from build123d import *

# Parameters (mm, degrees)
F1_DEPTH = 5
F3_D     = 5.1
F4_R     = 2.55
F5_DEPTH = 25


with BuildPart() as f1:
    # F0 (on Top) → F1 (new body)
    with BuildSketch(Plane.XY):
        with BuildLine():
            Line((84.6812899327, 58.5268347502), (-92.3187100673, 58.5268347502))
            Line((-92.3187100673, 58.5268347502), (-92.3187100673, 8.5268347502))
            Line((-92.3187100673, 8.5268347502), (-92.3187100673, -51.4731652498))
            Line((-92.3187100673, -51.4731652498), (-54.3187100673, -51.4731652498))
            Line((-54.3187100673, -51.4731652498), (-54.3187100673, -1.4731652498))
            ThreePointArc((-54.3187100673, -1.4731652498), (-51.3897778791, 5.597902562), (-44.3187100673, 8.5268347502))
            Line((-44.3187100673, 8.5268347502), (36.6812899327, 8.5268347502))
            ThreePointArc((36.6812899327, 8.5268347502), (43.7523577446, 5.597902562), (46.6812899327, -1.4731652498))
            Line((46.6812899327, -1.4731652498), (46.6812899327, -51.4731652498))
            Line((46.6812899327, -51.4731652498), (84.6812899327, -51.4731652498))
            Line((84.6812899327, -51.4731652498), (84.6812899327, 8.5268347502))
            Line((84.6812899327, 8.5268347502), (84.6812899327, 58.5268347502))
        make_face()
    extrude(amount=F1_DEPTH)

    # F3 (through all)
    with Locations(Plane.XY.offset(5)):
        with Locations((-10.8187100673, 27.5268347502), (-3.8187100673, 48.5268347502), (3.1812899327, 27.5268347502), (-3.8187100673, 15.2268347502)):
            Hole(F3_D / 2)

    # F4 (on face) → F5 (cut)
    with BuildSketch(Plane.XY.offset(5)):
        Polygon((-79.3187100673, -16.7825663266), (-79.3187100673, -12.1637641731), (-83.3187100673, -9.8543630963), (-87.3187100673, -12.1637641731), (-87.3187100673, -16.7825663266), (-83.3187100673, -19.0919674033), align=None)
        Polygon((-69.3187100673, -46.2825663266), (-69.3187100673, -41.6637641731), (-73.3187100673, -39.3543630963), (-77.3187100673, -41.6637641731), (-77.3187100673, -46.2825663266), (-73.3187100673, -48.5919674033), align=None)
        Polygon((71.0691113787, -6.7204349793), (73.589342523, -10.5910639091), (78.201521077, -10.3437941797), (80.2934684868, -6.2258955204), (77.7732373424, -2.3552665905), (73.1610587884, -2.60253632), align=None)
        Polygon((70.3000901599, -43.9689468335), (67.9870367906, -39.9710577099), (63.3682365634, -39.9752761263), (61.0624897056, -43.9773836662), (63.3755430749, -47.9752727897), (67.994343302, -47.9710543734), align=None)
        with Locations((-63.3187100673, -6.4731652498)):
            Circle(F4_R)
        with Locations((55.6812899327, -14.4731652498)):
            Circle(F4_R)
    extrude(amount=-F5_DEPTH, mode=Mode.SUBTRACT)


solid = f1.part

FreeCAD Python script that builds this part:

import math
import FreeCAD as App
import Part
import Sketcher
Q = App.Units.Quantity

doc = App.newDocument("Part")
body = doc.addObject("PartDesign::Body", "Body")

# Sketch on XY plane
sketch1 = body.newObject("Sketcher::SketchObject", "Sketch")
sketch1.AttachmentSupport = (doc.getObject("XY_Plane"), [""])
sketch1.MapMode = "FlatFace"
sketch1.addGeometry(Part.LineSegment(App.Vector(85, 59, 0), App.Vector(-92, 59, 0)), False)
sketch1.addGeometry(Part.LineSegment(App.Vector(-92, 59, 0), App.Vector(-92, -51, 0)), False)
sketch1.addGeometry(Part.LineSegment(App.Vector(-92, -51, 0), App.Vector(-54, -51, 0)), False)
sketch1.addGeometry(Part.LineSegment(App.Vector(-54, -51, 0), App.Vector(-54, -1, 0)), False)
sketch1.addGeometry(Part.ArcOfCircle(Part.Circle(App.Vector(-44, -1, 0), App.Vector(0, 0, 1), 10), math.radians(90), math.radians(180)), False)
sketch1.addGeometry(Part.LineSegment(App.Vector(-44, 9, 0), App.Vector(37, 9, 0)), False)
sketch1.addGeometry(Part.ArcOfCircle(Part.Circle(App.Vector(37, -1, 0), App.Vector(0, 0, 1), 10), math.radians(0), math.radians(90)), False)
sketch1.addGeometry(Part.LineSegment(App.Vector(47, -1, 0), App.Vector(47, -51, 0)), False)
sketch1.addGeometry(Part.LineSegment(App.Vector(47, -51, 0), App.Vector(85, -51, 0)), False)
sketch1.addGeometry(Part.LineSegment(App.Vector(85, -51, 0), App.Vector(85, 59, 0)), False)
sketch1.addConstraint(Sketcher.Constraint("Coincident", 0, 2, 1, 1))
sketch1.addConstraint(Sketcher.Constraint("Coincident", 1, 2, 2, 1))
sketch1.addConstraint(Sketcher.Constraint("Coincident", 2, 2, 3, 1))
sketch1.addConstraint(Sketcher.Constraint("Tangent", 3, 2, 4, 2))
sketch1.addConstraint(Sketcher.Constraint("Tangent", 4, 1, 5, 1))
sketch1.addConstraint(Sketcher.Constraint("Tangent", 5, 2, 6, 2))
sketch1.addConstraint(Sketcher.Constraint("Tangent", 6, 1, 7, 1))
sketch1.addConstraint(Sketcher.Constraint("Coincident", 7, 2, 8, 1))
sketch1.addConstraint(Sketcher.Constraint("Coincident", 8, 2, 9, 1))
sketch1.addConstraint(Sketcher.Constraint("Coincident", 9, 2, 0, 1))
sketch1.addConstraint(Sketcher.Constraint("Horizontal", 0))
sketch1.addConstraint(Sketcher.Constraint("Vertical", 1))
sketch1.addConstraint(Sketcher.Constraint("Horizontal", 2))
sketch1.addConstraint(Sketcher.Constraint("Vertical", 3))
sketch1.addConstraint(Sketcher.Constraint("Horizontal", 5))
sketch1.addConstraint(Sketcher.Constraint("Vertical", 7))
sketch1.addConstraint(Sketcher.Constraint("Horizontal", 8))
sketch1.addConstraint(Sketcher.Constraint("Vertical", 9))
sketch1.addConstraint(Sketcher.Constraint("Equal", 4, 6))
sketch1.addConstraint(Sketcher.Constraint("Horizontal", 2, 2, 7, 2))
sketch1.addConstraint(Sketcher.Constraint("Equal", 2, 8))
sketch1.addConstraint(Sketcher.Constraint("Radius", 4, Q("10 mm")))
sketch1.addConstraint(Sketcher.Constraint("DistanceX", 0, 2, 0, 1, Q("177 mm")))
sketch1.addConstraint(Sketcher.Constraint("DistanceX", 2, 1, 2, 2, Q("38 mm")))
sketch1.addConstraint(Sketcher.Constraint("DistanceY", 1, 2, 1, 1, Q("110 mm")))
sketch1.addConstraint(Sketcher.Constraint("DistanceY", 3, 1, 3, 2, Q("50 mm")))
sketch1.addConstraint(Sketcher.Constraint("DistanceX", 4, 3, -1, 1, Q("44.31871 mm")))
sketch1.addConstraint(Sketcher.Constraint("DistanceY", 4, 3, -1, 1, Q("1.473165 mm")))
pad1 = body.newObject("PartDesign::Pad", "Pad")
pad1.Profile = sketch1
pad1.Length = 5

# Sketch on XY plane
sketch2 = body.newObject("Sketcher::SketchObject", "Sketch001")
sketch2.AttachmentSupport = (doc.getObject("XY_Plane"), [""])
sketch2.MapMode = "FlatFace"
sketch2.AttachmentOffset = App.Placement(App.Vector(0, 0, 5), App.Rotation())
sketch2.addGeometry(Part.Circle(App.Vector(-10.8, 27.5, 0), App.Vector(0, 0, 1), 2.5), False)
sketch2.addGeometry(Part.Circle(App.Vector(-3.8, 48.5, 0), App.Vector(0, 0, 1), 2.5), False)
sketch2.addGeometry(Part.Circle(App.Vector(3.2, 27.5, 0), App.Vector(0, 0, 1), 2.5), False)
sketch2.addGeometry(Part.Circle(App.Vector(-3.8, 15.2, 0), App.Vector(0, 0, 1), 2.5), False)
sketch2.addConstraint(Sketcher.Constraint("Equal", 0, 1))
sketch2.addConstraint(Sketcher.Constraint("Equal", 1, 2))
sketch2.addConstraint(Sketcher.Constraint("Equal", 2, 3))
sketch2.addConstraint(Sketcher.Constraint("Horizontal", 0, 3, 2, 3))
sketch2.addConstraint(Sketcher.Constraint("Vertical", 1, 3, 3, 3))
sketch2.addConstraint(Sketcher.Constraint("Diameter", 0, Q("5.1 mm")))
sketch2.addConstraint(Sketcher.Constraint("DistanceX", 0, 3, 1, 3, Q("7 mm")))
sketch2.addConstraint(Sketcher.Constraint("DistanceY", 0, 3, 1, 3, Q("21 mm")))
sketch2.addConstraint(Sketcher.Constraint("DistanceX", 0, 3, 2, 3, Q("14 mm")))
sketch2.addConstraint(Sketcher.Constraint("DistanceY", 3, 3, 0, 3, Q("12.3 mm")))
sketch2.addConstraint(Sketcher.Constraint("DistanceX", 0, 3, -1, 1, Q("10.81871 mm")))
sketch2.addConstraint(Sketcher.Constraint("DistanceY", -1, 1, 0, 3, Q("27.526835 mm")))
doc.recompute()
hole = body.newObject("PartDesign::Hole", "Hole")
hole.Profile = sketch2
hole.ThreadType = "None"
hole.Diameter = 5.1
hole.DepthType = "ThroughAll"

# Sketch on XY plane
sketch3 = body.newObject("Sketcher::SketchObject", "Sketch002")
sketch3.AttachmentSupport = (doc.getObject("XY_Plane"), [""])
sketch3.MapMode = "FlatFace"
sketch3.AttachmentOffset = App.Placement(App.Vector(0, 0, 5), App.Rotation())
sketch3.addGeometry(Part.LineSegment(App.Vector(-79.3, -16.8, 0), App.Vector(-79.3, -12.2, 0)), False)
sketch3.addGeometry(Part.LineSegment(App.Vector(-79.3, -12.2, 0), App.Vector(-83.3, -9.9, 0)), False)
sketch3.addGeometry(Part.LineSegment(App.Vector(-83.3, -9.9, 0), App.Vector(-87.3, -12.2, 0)), False)
sketch3.addGeometry(Part.LineSegment(App.Vector(-87.3, -12.2, 0), App.Vector(-87.3, -16.8, 0)), False)
sketch3.addGeometry(Part.LineSegment(App.Vector(-87.3, -16.8, 0), App.Vector(-83.3, -19.1, 0)), False)
sketch3.addGeometry(Part.LineSegment(App.Vector(-83.3, -19.1, 0), App.Vector(-79.3, -16.8, 0)), False)
sketch3.addGeometry(Part.LineSegment(App.Vector(-69.3, -46.3, 0), App.Vector(-69.3, -41.7, 0)), False)
sketch3.addGeometry(Part.LineSegment(App.Vector(-69.3, -41.7, 0), App.Vector(-73.3, -39.4, 0)), False)
sketch3.addGeometry(Part.LineSegment(App.Vector(-73.3, -39.4, 0), App.Vector(-77.3, -41.7, 0)), False)
sketch3.addGeometry(Part.LineSegment(App.Vector(-77.3, -41.7, 0), App.Vector(-77.3, -46.3, 0)), False)
sketch3.addGeometry(Part.LineSegment(App.Vector(-77.3, -46.3, 0), App.Vector(-73.3, -48.6, 0)), False)
sketch3.addGeometry(Part.LineSegment(App.Vector(-73.3, -48.6, 0), App.Vector(-69.3, -46.3, 0)), False)
sketch3.addGeometry(Part.LineSegment(App.Vector(71.1, -6.7, 0), App.Vector(73.6, -10.6, 0)), False)
sketch3.addGeometry(Part.LineSegment(App.Vector(73.6, -10.6, 0), App.Vector(78.2, -10.3, 0)), False)
sketch3.addGeometry(Part.LineSegment(App.Vector(78.2, -10.3, 0), App.Vector(80.3, -6.2, 0)), False)
sketch3.addGeometry(Part.LineSegment(App.Vector(80.3, -6.2, 0), App.Vector(77.8, -2.4, 0)), False)
sketch3.addGeometry(Part.LineSegment(App.Vector(77.8, -2.4, 0), App.Vector(73.2, -2.6, 0)), False)
sketch3.addGeometry(Part.LineSegment(App.Vector(73.2, -2.6, 0), App.Vector(71.1, -6.7, 0)), False)
sketch3.addGeometry(Part.LineSegment(App.Vector(70.3, -44, 0), App.Vector(68, -40, 0)), False)
sketch3.addGeometry(Part.LineSegment(App.Vector(68, -40, 0), App.Vector(63.4, -40, 0)), False)
sketch3.addGeometry(Part.LineSegment(App.Vector(63.4, -40, 0), App.Vector(61.1, -44, 0)), False)
sketch3.addGeometry(Part.LineSegment(App.Vector(61.1, -44, 0), App.Vector(63.4, -48, 0)), False)
sketch3.addGeometry(Part.LineSegment(App.Vector(63.4, -48, 0), App.Vector(68, -48, 0)), False)
sketch3.addGeometry(Part.LineSegment(App.Vector(68, -48, 0), App.Vector(70.3, -44, 0)), False)
sketch3.addGeometry(Part.Circle(App.Vector(-63.3, -6.5, 0), App.Vector(0, 0, 1), 2.5), False)
sketch3.addGeometry(Part.Circle(App.Vector(55.7, -14.5, 0), App.Vector(0, 0, 1), 2.5), False)
sketch3.addConstraint(Sketcher.Constraint("Coincident", 0, 2, 1, 1))
sketch3.addConstraint(Sketcher.Constraint("Coincident", 1, 2, 2, 1))
sketch3.addConstraint(Sketcher.Constraint("Coincident", 2, 2, 3, 1))
sketch3.addConstraint(Sketcher.Constraint("Coincident", 3, 2, 4, 1))
sketch3.addConstraint(Sketcher.Constraint("Coincident", 4, 2, 5, 1))
sketch3.addConstraint(Sketcher.Constraint("Coincident", 5, 2, 0, 1))
sketch3.addConstraint(Sketcher.Constraint("Coincident", 6, 2, 7, 1))
sketch3.addConstraint(Sketcher.Constraint("Coincident", 7, 2, 8, 1))
sketch3.addConstraint(Sketcher.Constraint("Coincident", 8, 2, 9, 1))
sketch3.addConstraint(Sketcher.Constraint("Coincident", 9, 2, 10, 1))
sketch3.addConstraint(Sketcher.Constraint("Coincident", 10, 2, 11, 1))
sketch3.addConstraint(Sketcher.Constraint("Coincident", 11, 2, 6, 1))
sketch3.addConstraint(Sketcher.Constraint("Coincident", 12, 2, 13, 1))
sketch3.addConstraint(Sketcher.Constraint("Coincident", 13, 2, 14, 1))
sketch3.addConstraint(Sketcher.Constraint("Coincident", 14, 2, 15, 1))
sketch3.addConstraint(Sketcher.Constraint("Coincident", 15, 2, 16, 1))
sketch3.addConstraint(Sketcher.Constraint("Coincident", 16, 2, 17, 1))
sketch3.addConstraint(Sketcher.Constraint("Coincident", 17, 2, 12, 1))
sketch3.addConstraint(Sketcher.Constraint("Coincident", 18, 2, 19, 1))
sketch3.addConstraint(Sketcher.Constraint("Coincident", 19, 2, 20, 1))
sketch3.addConstraint(Sketcher.Constraint("Coincident", 20, 2, 21, 1))
sketch3.addConstraint(Sketcher.Constraint("Coincident", 21, 2, 22, 1))
sketch3.addConstraint(Sketcher.Constraint("Coincident", 22, 2, 23, 1))
sketch3.addConstraint(Sketcher.Constraint("Coincident", 23, 2, 18, 1))
sketch3.addConstraint(Sketcher.Constraint("Vertical", 0))
sketch3.addConstraint(Sketcher.Constraint("Vertical", 3))
sketch3.addConstraint(Sketcher.Constraint("Vertical", 6))
sketch3.addConstraint(Sketcher.Constraint("Vertical", 9))
sketch3.addConstraint(Sketcher.Constraint("Equal", 24, 25))
sketch3.addConstraint(Sketcher.Constraint("Parallel", 1, 4))
sketch3.addConstraint(Sketcher.Constraint("Parallel", 2, 5))
sketch3.addConstraint(Sketcher.Constraint("Parallel", 4, 7))
sketch3.addConstraint(Sketcher.Constraint("Parallel", 5, 8))
sketch3.addConstraint(Sketcher.Constraint("Parallel", 7, 10))
sketch3.addConstraint(Sketcher.Constraint("Parallel", 8, 11))
sketch3.addConstraint(Sketcher.Constraint("Parallel", 12, 15))
sketch3.addConstraint(Sketcher.Constraint("Parallel", 13, 16))
sketch3.addConstraint(Sketcher.Constraint("Parallel", 14, 17))
sketch3.addConstraint(Sketcher.Constraint("Parallel", 18, 21))
sketch3.addConstraint(Sketcher.Constraint("Parallel", 19, 22))
sketch3.addConstraint(Sketcher.Constraint("Parallel", 20, 23))
sketch3.addConstraint(Sketcher.Constraint("Horizontal", 0, 2, 2, 2))
sketch3.addConstraint(Sketcher.Constraint("Horizontal", 3, 2, 5, 2))
sketch3.addConstraint(Sketcher.Constraint("Horizontal", 6, 2, 8, 2))
sketch3.addConstraint(Sketcher.Constraint("Horizontal", 9, 2, 11, 2))
sketch3.addConstraint(Sketcher.Constraint("Vertical", 1, 2, 4, 2))
sketch3.addConstraint(Sketcher.Constraint("Equal", 3, 6))
sketch3.addConstraint(Sketcher.Constraint("Equal", 5, 7))
sketch3.addConstraint(Sketcher.Constraint("Equal", 11, 12))
sketch3.addConstraint(Sketcher.Constraint("Equal", 12, 13))
sketch3.addConstraint(Sketcher.Constraint("Equal", 13, 14))
sketch3.addConstraint(Sketcher.Constraint("Equal", 14, 15))
sketch3.addConstraint(Sketcher.Constraint("Equal", 17, 18))
sketch3.addConstraint(Sketcher.Constraint("Equal", 18, 19))
sketch3.addConstraint(Sketcher.Constraint("Equal", 19, 20))
sketch3.addConstraint(Sketcher.Constraint("Equal", 20, 21))
sketch3.addConstraint(Sketcher.Constraint("Diameter", 24, Q("5.1 mm")))
sketch3.addConstraint(Sketcher.Constraint("Angle", 1, Q("150 deg")))
sketch3.addConstraint(Sketcher.Constraint("DistanceX", 24, 3, 25, 3, Q("119 mm")))
sketch3.addConstraint(Sketcher.Constraint("DistanceY", 25, 3, 24, 3, Q("8 mm")))
sketch3.addConstraint(Sketcher.Constraint("DistanceX", 0, 2, 24, 3, Q("16 mm")))
sketch3.addConstraint(Sketcher.Constraint("DistanceX", 1, 2, 0, 2, Q("4 mm")))
sketch3.addConstraint(Sketcher.Constraint("DistanceX", 4, 2, 6, 2, Q("14 mm")))
sketch3.addConstraint(Sketcher.Constraint("DistanceY", 6, 2, 0, 2, Q("29.5 mm")))
sketch3.addConstraint(Sketcher.Constraint("DistanceY", 0, 2, 24, 3, Q("5.690599 mm")))
sketch3.addConstraint(Sketcher.Constraint("DistanceY", 3, 2, 24, 3, Q("10.309401 mm")))
sketch3.addConstraint(Sketcher.Constraint("DistanceY", 25, 3, 12, 2, Q("3.882101 mm")))
sketch3.addConstraint(Sketcher.Constraint("DistanceY", 13, 2, 14, 2, Q("4.117899 mm")))
sketch3.addConstraint(Sketcher.Constraint("DistanceY", 25, 3, 15, 2, Q("12.117899 mm")))
sketch3.addConstraint(Sketcher.Constraint("DistanceX", 25, 3, 20, 2, Q("5.3812 mm")))
sketch3.addConstraint(Sketcher.Constraint("DistanceX", 21, 2, 12, 2, Q("10.213799 mm")))
sketch3.addConstraint(Sketcher.Constraint("DistanceX", 20, 2, 23, 2, Q("9.2376 mm")))
sketch3.addConstraint(Sketcher.Constraint("DistanceX", 24, 3, -1, 1, Q("63.31871 mm")))
sketch3.addConstraint(Sketcher.Constraint("DistanceX", -1, 1, 13, 2, Q("78.201521 mm")))
sketch3.addConstraint(Sketcher.Constraint("DistanceX", -1, 1, 16, 2, Q("73.161059 mm")))
sketch3.addConstraint(Sketcher.Constraint("DistanceY", 19, 2, 18, 2, Q("0.004218 mm")))
sketch3.addConstraint(Sketcher.Constraint("DistanceY", 19, 2, 25, 3, Q("25.502111 mm")))
sketch3.addConstraint(Sketcher.Constraint("DistanceY", 24, 3, -1, 1, Q("6.473165 mm")))
pocket1 = body.newObject("PartDesign::Pocket", "Pocket")
pocket1.Profile = sketch3
pocket1.Length = 25

doc.recompute()
